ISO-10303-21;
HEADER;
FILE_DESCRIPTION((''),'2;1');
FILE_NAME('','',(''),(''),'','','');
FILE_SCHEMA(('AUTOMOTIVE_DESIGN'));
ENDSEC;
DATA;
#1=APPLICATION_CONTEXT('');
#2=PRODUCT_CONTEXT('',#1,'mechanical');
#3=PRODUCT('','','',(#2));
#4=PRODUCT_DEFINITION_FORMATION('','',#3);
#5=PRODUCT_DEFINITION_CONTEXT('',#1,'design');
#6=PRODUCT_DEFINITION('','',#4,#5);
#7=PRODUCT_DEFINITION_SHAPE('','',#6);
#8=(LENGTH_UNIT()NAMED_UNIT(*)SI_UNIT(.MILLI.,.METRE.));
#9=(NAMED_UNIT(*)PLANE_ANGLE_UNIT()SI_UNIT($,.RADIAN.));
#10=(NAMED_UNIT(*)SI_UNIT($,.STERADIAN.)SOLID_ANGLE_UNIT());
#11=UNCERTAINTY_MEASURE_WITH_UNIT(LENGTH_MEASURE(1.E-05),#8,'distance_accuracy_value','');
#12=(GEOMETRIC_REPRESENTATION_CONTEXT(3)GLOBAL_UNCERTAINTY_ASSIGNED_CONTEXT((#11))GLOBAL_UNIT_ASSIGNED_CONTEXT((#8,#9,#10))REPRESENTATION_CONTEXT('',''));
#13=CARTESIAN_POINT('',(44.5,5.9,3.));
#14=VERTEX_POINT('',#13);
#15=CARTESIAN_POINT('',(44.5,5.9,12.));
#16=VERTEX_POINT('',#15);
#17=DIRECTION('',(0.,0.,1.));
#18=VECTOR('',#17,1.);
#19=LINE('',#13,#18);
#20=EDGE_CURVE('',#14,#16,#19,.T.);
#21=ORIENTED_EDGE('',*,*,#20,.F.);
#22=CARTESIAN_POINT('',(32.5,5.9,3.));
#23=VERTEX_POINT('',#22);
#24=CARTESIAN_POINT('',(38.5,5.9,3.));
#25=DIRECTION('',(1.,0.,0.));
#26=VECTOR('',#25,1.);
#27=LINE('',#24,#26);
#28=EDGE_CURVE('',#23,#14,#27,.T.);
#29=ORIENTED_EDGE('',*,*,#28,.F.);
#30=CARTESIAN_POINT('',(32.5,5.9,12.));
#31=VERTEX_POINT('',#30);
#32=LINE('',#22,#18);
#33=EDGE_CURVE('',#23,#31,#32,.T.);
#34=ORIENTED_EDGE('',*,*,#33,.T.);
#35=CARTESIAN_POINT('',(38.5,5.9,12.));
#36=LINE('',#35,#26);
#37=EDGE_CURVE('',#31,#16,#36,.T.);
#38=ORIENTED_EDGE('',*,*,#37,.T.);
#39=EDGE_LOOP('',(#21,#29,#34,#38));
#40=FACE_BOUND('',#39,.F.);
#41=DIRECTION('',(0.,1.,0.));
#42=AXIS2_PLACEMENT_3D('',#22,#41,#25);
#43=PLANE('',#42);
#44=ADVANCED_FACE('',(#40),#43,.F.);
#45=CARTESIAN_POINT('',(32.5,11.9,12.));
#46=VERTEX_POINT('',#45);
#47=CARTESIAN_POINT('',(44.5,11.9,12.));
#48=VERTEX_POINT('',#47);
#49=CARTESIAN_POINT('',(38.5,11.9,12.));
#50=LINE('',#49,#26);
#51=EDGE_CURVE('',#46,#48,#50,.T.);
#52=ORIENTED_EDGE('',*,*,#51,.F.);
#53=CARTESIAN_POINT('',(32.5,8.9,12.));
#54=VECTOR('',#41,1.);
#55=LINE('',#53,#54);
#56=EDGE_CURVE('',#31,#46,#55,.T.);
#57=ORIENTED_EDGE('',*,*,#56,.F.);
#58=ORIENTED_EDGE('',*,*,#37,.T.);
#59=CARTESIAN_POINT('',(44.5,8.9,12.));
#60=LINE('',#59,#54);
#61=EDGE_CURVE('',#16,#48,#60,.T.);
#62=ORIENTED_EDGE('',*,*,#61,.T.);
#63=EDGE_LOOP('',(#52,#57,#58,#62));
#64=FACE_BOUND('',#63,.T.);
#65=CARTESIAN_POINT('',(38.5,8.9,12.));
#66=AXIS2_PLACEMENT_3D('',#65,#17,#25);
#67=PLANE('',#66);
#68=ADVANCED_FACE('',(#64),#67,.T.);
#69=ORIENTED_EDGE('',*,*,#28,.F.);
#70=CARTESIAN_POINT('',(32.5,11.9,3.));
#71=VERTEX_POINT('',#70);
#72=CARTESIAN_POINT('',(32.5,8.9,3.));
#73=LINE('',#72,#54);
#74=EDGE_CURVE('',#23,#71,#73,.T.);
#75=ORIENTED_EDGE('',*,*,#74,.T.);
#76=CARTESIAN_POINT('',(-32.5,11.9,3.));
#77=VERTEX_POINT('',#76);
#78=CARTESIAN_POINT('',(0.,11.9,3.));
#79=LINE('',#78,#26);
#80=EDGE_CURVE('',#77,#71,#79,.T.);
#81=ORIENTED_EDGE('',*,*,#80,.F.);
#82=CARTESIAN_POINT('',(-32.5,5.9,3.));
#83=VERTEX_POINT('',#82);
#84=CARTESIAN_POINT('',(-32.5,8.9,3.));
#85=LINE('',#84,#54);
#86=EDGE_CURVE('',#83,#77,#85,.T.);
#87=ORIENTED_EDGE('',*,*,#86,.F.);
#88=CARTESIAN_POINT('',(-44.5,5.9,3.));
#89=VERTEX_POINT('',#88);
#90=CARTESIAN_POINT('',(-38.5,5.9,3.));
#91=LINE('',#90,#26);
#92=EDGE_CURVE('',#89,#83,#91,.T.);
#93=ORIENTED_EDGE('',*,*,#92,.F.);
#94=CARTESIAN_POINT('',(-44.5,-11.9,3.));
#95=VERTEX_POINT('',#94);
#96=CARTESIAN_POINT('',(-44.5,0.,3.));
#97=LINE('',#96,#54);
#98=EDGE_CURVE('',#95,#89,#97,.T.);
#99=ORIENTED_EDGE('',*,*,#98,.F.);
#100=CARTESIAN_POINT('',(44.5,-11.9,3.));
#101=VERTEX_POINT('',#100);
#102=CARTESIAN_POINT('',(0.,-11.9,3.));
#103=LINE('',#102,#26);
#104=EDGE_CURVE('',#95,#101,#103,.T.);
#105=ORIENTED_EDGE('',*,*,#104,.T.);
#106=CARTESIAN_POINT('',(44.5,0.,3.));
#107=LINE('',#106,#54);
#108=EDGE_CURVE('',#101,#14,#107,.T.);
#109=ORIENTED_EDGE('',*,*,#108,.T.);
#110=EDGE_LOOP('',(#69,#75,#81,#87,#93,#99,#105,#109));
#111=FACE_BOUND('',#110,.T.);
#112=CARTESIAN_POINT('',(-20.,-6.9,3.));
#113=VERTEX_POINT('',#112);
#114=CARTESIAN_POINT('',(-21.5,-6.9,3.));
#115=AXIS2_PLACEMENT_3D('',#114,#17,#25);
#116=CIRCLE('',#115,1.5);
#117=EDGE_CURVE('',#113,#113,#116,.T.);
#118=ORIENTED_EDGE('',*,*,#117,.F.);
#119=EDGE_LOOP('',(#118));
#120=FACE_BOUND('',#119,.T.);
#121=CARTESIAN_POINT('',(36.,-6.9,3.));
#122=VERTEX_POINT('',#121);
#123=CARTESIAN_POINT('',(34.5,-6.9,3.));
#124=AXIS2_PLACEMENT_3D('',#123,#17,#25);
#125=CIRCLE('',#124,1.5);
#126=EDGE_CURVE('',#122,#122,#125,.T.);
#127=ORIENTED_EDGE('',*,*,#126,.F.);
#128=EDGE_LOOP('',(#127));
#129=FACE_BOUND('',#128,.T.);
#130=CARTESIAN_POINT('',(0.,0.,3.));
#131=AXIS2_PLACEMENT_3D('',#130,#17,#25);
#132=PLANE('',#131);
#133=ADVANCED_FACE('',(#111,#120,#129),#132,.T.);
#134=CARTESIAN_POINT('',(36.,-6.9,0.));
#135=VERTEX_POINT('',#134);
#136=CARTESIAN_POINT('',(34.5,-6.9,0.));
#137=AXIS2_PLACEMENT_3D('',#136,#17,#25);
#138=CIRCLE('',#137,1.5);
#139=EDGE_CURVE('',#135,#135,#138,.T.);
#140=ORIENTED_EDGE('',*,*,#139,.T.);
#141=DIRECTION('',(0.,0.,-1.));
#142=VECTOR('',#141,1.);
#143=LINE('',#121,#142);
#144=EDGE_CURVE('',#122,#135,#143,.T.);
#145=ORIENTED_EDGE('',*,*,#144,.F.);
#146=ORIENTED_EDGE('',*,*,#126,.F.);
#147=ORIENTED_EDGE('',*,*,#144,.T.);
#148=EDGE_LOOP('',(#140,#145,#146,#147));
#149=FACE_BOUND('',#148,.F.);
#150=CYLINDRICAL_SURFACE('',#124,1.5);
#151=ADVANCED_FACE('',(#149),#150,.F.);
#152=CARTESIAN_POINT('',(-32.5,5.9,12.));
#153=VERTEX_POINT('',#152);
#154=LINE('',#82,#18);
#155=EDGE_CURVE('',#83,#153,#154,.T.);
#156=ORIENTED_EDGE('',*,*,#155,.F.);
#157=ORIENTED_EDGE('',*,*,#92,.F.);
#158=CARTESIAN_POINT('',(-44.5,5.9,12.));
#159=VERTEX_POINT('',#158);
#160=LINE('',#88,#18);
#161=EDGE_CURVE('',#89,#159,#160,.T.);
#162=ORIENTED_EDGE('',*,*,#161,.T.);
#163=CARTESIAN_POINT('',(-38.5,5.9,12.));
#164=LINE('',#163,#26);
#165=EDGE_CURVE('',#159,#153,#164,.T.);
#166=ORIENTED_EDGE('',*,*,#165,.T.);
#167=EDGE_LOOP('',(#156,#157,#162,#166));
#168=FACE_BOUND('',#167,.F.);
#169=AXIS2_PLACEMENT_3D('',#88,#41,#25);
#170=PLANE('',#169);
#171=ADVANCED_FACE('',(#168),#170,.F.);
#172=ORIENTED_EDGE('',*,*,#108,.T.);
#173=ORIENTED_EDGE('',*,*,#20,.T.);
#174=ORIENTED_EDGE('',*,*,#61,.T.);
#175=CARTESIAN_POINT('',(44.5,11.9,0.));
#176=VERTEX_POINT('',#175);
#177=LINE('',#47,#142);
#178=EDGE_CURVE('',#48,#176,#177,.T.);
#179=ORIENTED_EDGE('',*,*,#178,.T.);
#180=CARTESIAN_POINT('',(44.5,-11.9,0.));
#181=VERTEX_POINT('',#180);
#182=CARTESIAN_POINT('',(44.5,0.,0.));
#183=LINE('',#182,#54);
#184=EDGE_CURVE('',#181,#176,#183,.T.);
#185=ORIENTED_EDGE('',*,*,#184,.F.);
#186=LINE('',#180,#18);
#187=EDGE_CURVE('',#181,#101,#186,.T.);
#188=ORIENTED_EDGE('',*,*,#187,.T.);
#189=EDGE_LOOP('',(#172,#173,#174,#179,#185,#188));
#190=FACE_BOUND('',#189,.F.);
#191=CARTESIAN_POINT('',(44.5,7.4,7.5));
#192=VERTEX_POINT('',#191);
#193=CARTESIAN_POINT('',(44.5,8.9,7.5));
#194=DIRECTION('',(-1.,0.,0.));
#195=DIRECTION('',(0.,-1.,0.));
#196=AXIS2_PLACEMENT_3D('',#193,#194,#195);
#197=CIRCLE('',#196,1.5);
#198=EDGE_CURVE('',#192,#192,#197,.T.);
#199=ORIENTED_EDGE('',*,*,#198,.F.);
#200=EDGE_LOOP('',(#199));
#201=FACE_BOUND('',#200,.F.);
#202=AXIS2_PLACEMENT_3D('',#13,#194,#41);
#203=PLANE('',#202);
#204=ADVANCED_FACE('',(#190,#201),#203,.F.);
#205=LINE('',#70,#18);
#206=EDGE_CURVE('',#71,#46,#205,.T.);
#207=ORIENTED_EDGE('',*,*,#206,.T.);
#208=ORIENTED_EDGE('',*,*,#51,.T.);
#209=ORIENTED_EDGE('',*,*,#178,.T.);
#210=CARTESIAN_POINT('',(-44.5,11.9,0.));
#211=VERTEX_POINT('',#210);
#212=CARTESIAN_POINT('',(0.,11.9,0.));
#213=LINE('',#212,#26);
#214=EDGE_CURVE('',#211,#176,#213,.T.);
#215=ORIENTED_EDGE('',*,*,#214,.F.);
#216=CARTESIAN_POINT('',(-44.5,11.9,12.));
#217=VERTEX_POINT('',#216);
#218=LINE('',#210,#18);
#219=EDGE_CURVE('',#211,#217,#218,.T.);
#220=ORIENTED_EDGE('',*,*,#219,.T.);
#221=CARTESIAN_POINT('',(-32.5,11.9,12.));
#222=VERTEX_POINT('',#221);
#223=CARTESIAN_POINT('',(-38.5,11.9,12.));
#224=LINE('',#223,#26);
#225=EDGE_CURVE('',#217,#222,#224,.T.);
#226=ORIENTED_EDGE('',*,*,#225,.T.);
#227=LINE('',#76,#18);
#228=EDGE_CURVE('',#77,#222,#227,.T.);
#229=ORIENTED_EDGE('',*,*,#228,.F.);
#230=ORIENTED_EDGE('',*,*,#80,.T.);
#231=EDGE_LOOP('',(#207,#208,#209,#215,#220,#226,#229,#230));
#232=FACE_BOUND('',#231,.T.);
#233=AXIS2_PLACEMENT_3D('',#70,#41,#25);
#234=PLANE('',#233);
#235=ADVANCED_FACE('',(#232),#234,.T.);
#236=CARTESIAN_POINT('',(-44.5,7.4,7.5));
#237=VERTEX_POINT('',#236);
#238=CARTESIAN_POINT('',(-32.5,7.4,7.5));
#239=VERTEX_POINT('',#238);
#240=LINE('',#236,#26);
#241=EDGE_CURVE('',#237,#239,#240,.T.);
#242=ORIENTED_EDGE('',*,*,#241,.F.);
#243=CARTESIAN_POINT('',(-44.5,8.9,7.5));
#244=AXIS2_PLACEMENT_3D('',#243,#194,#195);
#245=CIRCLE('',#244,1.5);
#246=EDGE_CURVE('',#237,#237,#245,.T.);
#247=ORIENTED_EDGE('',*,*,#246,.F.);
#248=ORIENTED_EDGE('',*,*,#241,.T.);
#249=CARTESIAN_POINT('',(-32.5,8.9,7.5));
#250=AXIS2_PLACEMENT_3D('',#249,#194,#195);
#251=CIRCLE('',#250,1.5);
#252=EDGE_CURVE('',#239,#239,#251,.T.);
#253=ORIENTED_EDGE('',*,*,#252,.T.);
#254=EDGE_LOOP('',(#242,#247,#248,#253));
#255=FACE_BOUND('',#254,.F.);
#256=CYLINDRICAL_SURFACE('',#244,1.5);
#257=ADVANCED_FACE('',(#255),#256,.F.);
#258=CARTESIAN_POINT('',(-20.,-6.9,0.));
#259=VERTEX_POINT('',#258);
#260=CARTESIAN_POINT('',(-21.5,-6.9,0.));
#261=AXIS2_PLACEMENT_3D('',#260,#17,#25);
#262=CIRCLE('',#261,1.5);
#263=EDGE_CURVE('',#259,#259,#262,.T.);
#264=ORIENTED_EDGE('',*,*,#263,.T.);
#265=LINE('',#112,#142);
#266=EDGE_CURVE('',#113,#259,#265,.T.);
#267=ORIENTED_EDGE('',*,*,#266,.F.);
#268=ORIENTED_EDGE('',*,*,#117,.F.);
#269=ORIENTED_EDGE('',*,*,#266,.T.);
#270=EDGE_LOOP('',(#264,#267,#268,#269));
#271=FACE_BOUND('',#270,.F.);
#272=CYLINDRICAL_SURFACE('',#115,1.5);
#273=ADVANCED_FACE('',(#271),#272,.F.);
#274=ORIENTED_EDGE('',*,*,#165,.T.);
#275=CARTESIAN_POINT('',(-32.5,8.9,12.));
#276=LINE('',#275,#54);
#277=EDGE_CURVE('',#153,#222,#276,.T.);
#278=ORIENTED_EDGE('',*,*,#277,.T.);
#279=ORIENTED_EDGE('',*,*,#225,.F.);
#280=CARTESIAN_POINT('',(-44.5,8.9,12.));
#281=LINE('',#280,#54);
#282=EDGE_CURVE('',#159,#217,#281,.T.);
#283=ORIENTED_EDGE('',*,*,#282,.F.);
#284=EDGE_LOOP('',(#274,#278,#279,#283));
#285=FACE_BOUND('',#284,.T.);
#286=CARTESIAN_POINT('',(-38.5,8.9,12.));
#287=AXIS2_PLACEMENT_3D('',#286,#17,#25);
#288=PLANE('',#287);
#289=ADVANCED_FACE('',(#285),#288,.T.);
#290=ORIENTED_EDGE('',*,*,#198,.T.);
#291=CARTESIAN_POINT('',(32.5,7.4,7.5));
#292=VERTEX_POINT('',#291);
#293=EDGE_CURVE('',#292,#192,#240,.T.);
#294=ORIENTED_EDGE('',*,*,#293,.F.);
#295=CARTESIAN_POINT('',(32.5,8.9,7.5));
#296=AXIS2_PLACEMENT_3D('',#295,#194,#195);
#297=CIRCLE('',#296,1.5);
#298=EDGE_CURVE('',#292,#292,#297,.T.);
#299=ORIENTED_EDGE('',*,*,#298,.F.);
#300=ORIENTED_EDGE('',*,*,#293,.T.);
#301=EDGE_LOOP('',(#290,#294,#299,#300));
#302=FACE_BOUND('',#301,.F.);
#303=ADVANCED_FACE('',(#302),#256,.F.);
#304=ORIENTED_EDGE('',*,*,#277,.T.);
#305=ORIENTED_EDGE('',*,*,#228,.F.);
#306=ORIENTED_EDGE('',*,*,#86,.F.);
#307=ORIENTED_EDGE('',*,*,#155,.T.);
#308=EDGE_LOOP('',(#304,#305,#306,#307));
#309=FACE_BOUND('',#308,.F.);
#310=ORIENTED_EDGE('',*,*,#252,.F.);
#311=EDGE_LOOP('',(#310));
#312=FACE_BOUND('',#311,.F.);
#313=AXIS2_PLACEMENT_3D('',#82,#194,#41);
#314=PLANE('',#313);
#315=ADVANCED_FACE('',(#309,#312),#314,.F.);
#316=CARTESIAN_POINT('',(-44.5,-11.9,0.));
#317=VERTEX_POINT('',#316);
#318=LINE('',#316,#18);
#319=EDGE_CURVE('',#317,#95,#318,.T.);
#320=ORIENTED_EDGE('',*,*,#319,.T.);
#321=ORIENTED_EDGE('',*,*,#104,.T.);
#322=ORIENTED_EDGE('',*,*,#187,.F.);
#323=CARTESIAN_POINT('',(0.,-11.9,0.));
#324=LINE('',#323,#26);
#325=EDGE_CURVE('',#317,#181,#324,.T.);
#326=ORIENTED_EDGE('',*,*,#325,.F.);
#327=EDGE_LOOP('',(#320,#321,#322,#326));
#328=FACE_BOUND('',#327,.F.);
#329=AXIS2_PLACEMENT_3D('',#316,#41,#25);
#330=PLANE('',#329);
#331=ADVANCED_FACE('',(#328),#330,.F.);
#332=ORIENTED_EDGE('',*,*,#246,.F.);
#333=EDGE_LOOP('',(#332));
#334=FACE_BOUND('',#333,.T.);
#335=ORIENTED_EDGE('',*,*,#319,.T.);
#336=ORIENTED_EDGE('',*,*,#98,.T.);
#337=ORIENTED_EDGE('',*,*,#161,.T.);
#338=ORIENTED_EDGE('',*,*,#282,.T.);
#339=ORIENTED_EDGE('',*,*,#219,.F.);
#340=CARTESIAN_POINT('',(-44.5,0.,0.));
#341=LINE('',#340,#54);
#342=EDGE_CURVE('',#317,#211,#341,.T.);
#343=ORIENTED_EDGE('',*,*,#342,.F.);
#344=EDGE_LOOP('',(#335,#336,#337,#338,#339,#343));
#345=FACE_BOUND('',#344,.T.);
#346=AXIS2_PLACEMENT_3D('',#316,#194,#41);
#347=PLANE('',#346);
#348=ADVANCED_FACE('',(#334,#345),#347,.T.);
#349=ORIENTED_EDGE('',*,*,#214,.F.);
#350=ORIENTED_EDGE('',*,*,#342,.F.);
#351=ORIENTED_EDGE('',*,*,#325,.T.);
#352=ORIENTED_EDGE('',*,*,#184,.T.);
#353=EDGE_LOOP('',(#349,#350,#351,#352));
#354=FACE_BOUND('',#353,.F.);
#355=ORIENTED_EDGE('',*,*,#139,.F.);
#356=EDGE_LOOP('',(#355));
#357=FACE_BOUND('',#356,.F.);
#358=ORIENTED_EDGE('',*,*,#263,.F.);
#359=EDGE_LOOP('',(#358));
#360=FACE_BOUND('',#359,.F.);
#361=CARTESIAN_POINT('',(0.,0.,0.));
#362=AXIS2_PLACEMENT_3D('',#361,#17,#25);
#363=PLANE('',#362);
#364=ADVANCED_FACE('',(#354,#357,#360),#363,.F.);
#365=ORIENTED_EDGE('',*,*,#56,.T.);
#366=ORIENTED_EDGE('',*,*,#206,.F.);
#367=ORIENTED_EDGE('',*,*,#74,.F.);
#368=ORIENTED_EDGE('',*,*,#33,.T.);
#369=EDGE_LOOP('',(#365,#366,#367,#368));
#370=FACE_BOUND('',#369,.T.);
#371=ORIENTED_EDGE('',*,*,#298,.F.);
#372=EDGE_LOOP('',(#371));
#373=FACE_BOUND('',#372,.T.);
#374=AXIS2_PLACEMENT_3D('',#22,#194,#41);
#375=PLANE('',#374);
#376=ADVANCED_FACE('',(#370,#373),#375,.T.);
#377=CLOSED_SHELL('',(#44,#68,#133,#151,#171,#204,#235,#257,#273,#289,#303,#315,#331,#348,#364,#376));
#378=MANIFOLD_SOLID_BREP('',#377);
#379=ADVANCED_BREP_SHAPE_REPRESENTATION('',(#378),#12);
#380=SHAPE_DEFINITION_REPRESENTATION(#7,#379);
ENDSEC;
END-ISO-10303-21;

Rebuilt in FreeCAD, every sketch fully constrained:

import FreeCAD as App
import Part
import Sketcher


def add_polygon(sketch, points):
    """Adds a closed chain of lines whose ends are joined by coincident constraints."""
    first, n = sketch.GeometryCount, len(points)
    for a, b in zip(points, points[1:] + points[:1]):
        sketch.addGeometry(Part.LineSegment(App.Vector(*a, 0), App.Vector(*b, 0)), False)
    for i in range(n):
        sketch.addConstraint(Sketcher.Constraint("Coincident", first + i, 2, first + (i + 1) % n, 1))

doc = App.newDocument("Part")
params = doc.addObject("Spreadsheet::Sheet", "Params")
for row, (alias, value) in enumerate([
    ("sketch1_width", "89 mm"),
    ("sketch1_height", "23.8 mm"),
    ("pad1_length", "3 mm"),
    ("sketch2_width", "12 mm"),
    ("sketch2_height", "6 mm"),
    ("pad2_length", "9 mm"),
    ("sketch3_diameter", "3 mm"),
    ("sketch4_diameter", "3 mm"),
    ("pocket2_length", "15 mm"),
], start=1):
    params.set(f"A{row}", alias)
    params.set(f"B{row}", "=" + value)
    params.setAlias(f"B{row}", alias)

body = doc.addObject("PartDesign::Body", "Body")

# Sketch on XY plane
sketch1 = doc.addObject("Sketcher::SketchObject", "Sketch")
body.addObject(sketch1)
sketch1.AttachmentSupport = (doc.XY_Plane, [""])
sketch1.MapMode = "FlatFace"
add_polygon(sketch1, [(-44, 12), (-44, -12), (44, -12), (44, 12)])  # lines 0-3
sketch1.addConstraint([
    Sketcher.Constraint("Vertical", 0),
    Sketcher.Constraint("Horizontal", 1),
    Sketcher.Constraint("Vertical", 2),
    Sketcher.Constraint("Horizontal", 3),
    Sketcher.Constraint("Symmetric", 0, 2, 2, 2, -1, 1),
    Sketcher.Constraint("DistanceX", 1, 1, 1, 2, 89.0),
    Sketcher.Constraint("DistanceY", 0, 2, 0, 1, 23.8),
])
sketch1.setExpression("Constraints[9]", "Params.sketch1_width")
sketch1.setExpression("Constraints[10]", "Params.sketch1_height")
pad1 = doc.addObject("PartDesign::Pad", "Pad")
body.addObject(pad1)
pad1.Profile = sketch1
pad1.setExpression("Length", "Params.pad1_length")

# Sketch on XY plane
sketch2 = doc.addObject("Sketcher::SketchObject", "Sketch001")
body.addObject(sketch2)
sketch2.AttachmentSupport = (doc.XY_Plane, [""])
sketch2.MapMode = "FlatFace"
sketch2.AttachmentOffset = App.Placement(App.Vector(0, 0, 3), App.Rotation())
add_polygon(sketch2, [(32, 12), (32, 6), (44, 6), (44, 12)])  # lines 0-3
add_polygon(sketch2, [(-44, 12), (-44, 6), (-32, 6), (-32, 12)])  # lines 4-7
sketch2.addConstraint([
    Sketcher.Constraint("Vertical", 0),
    Sketcher.Constraint("Horizontal", 1),
    Sketcher.Constraint("Vertical", 2),
    Sketcher.Constraint("Horizontal", 3),
    Sketcher.Constraint("Vertical", 4),
    Sketcher.Constraint("Horizontal", 5),
    Sketcher.Constraint("Vertical", 6),
    Sketcher.Constraint("Horizontal", 7),
    Sketcher.Constraint("Symmetric", 1, 2, 4, 2, -2),
    Sketcher.Constraint("Symmetric", 3, 2, 6, 2, -2),
    Sketcher.Constraint("DistanceX", 1, 1, 1, 2, 12.0),
    Sketcher.Constraint("DistanceY", 0, 2, 0, 1, 6.0),
    Sketcher.Constraint("DistanceX", 4, 2, 0, 2, 77.0),
    Sketcher.Constraint("DistanceY", -1, 1, 0, 2, 5.9),
])
sketch2.setExpression("Constraints[18]", "Params.sketch2_width")
sketch2.setExpression("Constraints[19]", "Params.sketch2_height")
pad2 = doc.addObject("PartDesign::Pad", "Pad001")
body.addObject(pad2)
pad2.Profile = sketch2
pad2.setExpression("Length", "Params.pad2_length")

# Sketch on YZ plane
sketch3 = doc.addObject("Sketcher::SketchObject", "Sketch002")
body.addObject(sketch3)
sketch3.AttachmentSupport = (doc.YZ_Plane, [""])
sketch3.MapMode = "FlatFace"
sketch3.AttachmentOffset = App.Placement(App.Vector(0, 0, -44.5), App.Rotation())
sketch3.addGeometry(Part.Circle(App.Vector(8.9, 7.5, 0), App.Vector(0, 0, 1), 1.5), False)
sketch3.addConstraint([
    Sketcher.Constraint("Diameter", 0, 3.0),
    Sketcher.Constraint("DistanceX", -1, 1, 0, 3, 8.9),
    Sketcher.Constraint("DistanceY", -1, 1, 0, 3, 7.5),
])
sketch3.setExpression("Constraints[0]", "Params.sketch3_diameter")
pocket1 = doc.addObject("PartDesign::Pocket", "Pocket")
body.addObject(pocket1)
pocket1.Profile = sketch3
pocket1.Type = "ThroughAll"
pocket1.Reversed = True

# Sketch on XY plane
sketch4 = doc.addObject("Sketcher::SketchObject", "Sketch003")
body.addObject(sketch4)
sketch4.AttachmentSupport = (doc.XY_Plane, [""])
sketch4.MapMode = "FlatFace"
sketch4.AttachmentOffset = App.Placement(App.Vector(0, 0, 3), App.Rotation())
sketch4.addGeometry([
    Part.Circle(App.Vector(34.5, -6.9, 0), App.Vector(0, 0, 1), 1.5),
    Part.Circle(App.Vector(-21.5, -6.9, 0), App.Vector(0, 0, 1), 1.5),
], False)
sketch4.addConstraint([
    Sketcher.Constraint("Equal", 0, 1),
    Sketcher.Constraint("Horizontal", 0, 3, 1, 3),
    Sketcher.Constraint("Diameter", 0, 3.0),
    Sketcher.Constraint("DistanceX", 1, 3, 0, 3, 56.0),
    Sketcher.Constraint("DistanceX", -1, 1, 0, 3, 34.5),
    Sketcher.Constraint("DistanceY", 0, 3, -1, 1, 6.9),
])
sketch4.setExpression("Constraints[2]", "Params.sketch4_diameter")
pocket2 = doc.addObject("PartDesign::Pocket", "Pocket001")
body.addObject(pocket2)
pocket2.Profile = sketch4
pocket2.setExpression("Length", "Params.pocket2_length")

doc.recompute()
